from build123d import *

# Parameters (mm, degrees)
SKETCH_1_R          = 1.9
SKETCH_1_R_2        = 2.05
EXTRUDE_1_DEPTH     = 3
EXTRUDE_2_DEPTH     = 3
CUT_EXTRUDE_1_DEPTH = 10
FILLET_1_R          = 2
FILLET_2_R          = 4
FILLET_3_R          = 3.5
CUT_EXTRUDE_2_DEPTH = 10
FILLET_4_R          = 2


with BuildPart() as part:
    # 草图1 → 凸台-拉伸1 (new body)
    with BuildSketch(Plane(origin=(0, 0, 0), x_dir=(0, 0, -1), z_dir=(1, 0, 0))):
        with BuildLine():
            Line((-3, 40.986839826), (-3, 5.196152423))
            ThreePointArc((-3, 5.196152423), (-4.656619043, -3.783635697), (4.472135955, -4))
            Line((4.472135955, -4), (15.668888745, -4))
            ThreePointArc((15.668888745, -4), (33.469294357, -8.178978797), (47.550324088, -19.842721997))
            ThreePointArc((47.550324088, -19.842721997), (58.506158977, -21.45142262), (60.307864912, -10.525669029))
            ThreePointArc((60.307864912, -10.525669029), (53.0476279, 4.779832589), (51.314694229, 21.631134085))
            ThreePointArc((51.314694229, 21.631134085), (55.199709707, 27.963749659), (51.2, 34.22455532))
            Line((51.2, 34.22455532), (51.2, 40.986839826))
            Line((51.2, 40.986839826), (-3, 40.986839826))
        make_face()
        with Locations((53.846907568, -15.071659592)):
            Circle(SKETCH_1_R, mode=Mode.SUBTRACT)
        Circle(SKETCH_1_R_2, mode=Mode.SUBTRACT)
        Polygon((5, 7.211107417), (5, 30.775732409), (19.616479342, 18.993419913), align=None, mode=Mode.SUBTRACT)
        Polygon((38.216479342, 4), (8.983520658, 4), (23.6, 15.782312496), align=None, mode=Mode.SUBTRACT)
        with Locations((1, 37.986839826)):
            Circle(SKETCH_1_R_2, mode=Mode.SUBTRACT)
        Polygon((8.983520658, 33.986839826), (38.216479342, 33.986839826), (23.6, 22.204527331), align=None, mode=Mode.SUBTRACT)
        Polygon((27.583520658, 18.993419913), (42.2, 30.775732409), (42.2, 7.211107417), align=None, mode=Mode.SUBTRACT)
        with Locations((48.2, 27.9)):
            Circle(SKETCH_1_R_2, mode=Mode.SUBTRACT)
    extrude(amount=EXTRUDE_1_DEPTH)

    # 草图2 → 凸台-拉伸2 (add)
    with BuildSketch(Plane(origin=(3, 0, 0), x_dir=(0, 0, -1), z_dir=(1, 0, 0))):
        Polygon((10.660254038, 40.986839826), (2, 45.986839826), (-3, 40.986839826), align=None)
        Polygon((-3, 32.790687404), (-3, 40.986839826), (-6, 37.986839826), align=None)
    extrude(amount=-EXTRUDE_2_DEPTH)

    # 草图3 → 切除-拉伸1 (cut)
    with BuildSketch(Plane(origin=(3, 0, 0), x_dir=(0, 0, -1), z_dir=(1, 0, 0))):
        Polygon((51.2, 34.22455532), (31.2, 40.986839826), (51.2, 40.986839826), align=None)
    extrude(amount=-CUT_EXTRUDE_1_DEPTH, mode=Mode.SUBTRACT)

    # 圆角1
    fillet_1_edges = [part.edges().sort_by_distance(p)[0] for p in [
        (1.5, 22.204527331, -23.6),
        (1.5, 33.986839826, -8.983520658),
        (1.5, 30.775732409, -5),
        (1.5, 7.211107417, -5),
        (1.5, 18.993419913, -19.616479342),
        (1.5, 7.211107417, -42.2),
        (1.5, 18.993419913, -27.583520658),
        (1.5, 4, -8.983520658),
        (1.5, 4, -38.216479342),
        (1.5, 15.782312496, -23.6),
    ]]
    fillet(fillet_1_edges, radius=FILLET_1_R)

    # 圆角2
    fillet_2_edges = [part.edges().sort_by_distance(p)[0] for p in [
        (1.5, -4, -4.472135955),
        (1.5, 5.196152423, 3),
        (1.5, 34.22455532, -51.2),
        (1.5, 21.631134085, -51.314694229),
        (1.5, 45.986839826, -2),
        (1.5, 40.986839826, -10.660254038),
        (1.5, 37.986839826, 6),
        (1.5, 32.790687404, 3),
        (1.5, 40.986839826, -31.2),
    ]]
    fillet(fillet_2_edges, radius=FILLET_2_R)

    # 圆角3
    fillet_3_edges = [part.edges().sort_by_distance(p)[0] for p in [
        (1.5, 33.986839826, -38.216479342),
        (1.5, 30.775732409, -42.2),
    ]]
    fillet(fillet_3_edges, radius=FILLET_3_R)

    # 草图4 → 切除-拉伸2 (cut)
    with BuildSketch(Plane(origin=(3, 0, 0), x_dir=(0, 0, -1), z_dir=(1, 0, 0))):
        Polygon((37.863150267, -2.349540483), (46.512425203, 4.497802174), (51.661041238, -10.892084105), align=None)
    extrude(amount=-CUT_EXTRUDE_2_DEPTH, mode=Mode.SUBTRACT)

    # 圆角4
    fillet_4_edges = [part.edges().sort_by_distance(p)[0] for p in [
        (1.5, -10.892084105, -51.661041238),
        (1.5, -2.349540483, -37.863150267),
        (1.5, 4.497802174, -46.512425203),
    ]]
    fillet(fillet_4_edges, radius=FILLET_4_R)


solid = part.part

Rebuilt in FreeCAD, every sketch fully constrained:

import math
import FreeCAD as App
import Part
import Sketcher
from FreeCAD import Vector
Q = App.Units.Quantity


def edges_at(feature, points):
    """Names of the edges that pass closest to the given points."""
    edges = feature.Shape.Edges
    near = lambda p: min(range(len(edges)), key=lambda i: edges[i].distToShape(Part.Vertex(*p))[0])
    return sorted({f"Edge{near(p) + 1}" for p in points})


def add_polygon(sketch, points):
    """Adds a closed chain of lines whose ends are joined by coincident constraints."""
    first, n = sketch.GeometryCount, len(points)
    for a, b in zip(points, points[1:] + points[:1]):
        sketch.addGeometry(Part.LineSegment(App.Vector(*a, 0), App.Vector(*b, 0)), False)
    for i in range(n):
        sketch.addConstraint(Sketcher.Constraint("Coincident", first + i, 2, first + (i + 1) % n, 1))

doc = App.newDocument("Part")
body = doc.addObject("PartDesign::Body", "Body")

sketch1 = doc.addObject("Sketcher::SketchObject", "Sketch")
body.addObject(sketch1)
sketch1.AttachmentSupport = (doc.YZ_Plane, [""])
sketch1.MapMode = "FlatFace"
sketch1.addGeometry(Part.LineSegment(Vector(40.98684, 3, 0), Vector(5.196152, 3, 0)), False)
sketch1.addGeometry(Part.ArcOfCircle(Part.Circle(Vector(0, 0, 0), Vector(0, 0, 1), 6), math.radians(30), math.radians(228.189685)), False)
sketch1.addGeometry(Part.LineSegment(Vector(-4, -4.472136, 0), Vector(-4, -15.668889, 0)), False)
sketch1.addGeometry(Part.ArcOfCircle(Part.Circle(Vector(-44, -15.668889, 0), Vector(0, 0, 1), 40), math.radians(-52.847975), math.radians(0)), False)
sketch1.addGeometry(Part.ArcOfCircle(Part.Circle(Vector(-15.07166, -53.846908, 0), Vector(0, 0, 1), 7.9), math.radians(127.152025), math.radians(305.130581)), False)
sketch1.addGeometry(Part.ArcOfCircle(Part.Circle(Vector(18.246423, -101.2, 0), Vector(0, 0, 1), 50), math.radians(86.118439), math.radians(125.130581)), False)
sketch1.addGeometry(Part.ArcOfCircle(Part.Circle(Vector(27.9, -48.2, 0), Vector(0, 0, 1), 7), math.radians(-153.579456), math.radians(-25.376934)), False)
sketch1.addGeometry(Part.LineSegment(Vector(34.224555, -51.2, 0), Vector(40.98684, -51.2, 0)), False)
sketch1.addGeometry(Part.LineSegment(Vector(40.98684, -51.2, 0), Vector(40.98684, 3, 0)), False)
sketch1.addGeometry(Part.Circle(Vector(0, 0, 0), Vector(0, 0, 1), 2.05), False)
add_polygon(sketch1, [(15.782312, -23.6), (4, -38.216479), (4, -8.983521)])
sketch1.addGeometry(Part.Circle(Vector(-15.07166, -53.846908, 0), Vector(0, 0, 1), 1.9), False)
add_polygon(sketch1, [(18.99342, -19.616479), (7.211107, -5), (30.775732, -5)])
sketch1.addGeometry(Part.Circle(Vector(37.98684, -1, 0), Vector(0, 0, 1), 2.05), False)
add_polygon(sketch1, [(22.204527, -23.6), (33.98684, -8.983521), (33.98684, -38.216479)])
add_polygon(sketch1, [(7.211107, -42.2), (18.99342, -27.583521), (30.775732, -42.2)])
sketch1.addGeometry(Part.Circle(Vector(27.9, -48.2, 0), Vector(0, 0, 1), 2.05), False)
sketch1.addConstraint([
    Sketcher.Constraint("Coincident", 0, 2, 1, 1),
    Sketcher.Constraint("Coincident", 1, 2, 2, 1),
    Sketcher.Constraint("Tangent", 2, 2, 3, 2),
    Sketcher.Constraint("Tangent", 3, 1, 4, 1),
    Sketcher.Constraint("Tangent", 4, 2, 5, 2),
    Sketcher.Constraint("Coincident", 5, 1, 6, 1),
    Sketcher.Constraint("Coincident", 6, 2, 7, 1),
    Sketcher.Constraint("Coincident", 7, 2, 8, 1),
    Sketcher.Constraint("Coincident", 8, 2, 0, 1),
    Sketcher.Constraint("Horizontal", 0),
    Sketcher.Constraint("Vertical", 2),
    Sketcher.Constraint("Horizontal", 7),
    Sketcher.Constraint("Vertical", 8),
    Sketcher.Constraint("Vertical", 11),
    Sketcher.Constraint("Horizontal", 15),
    Sketcher.Constraint("Vertical", 19),
    Sketcher.Constraint("Horizontal", 23),
    Sketcher.Constraint("Coincident", 1, 3, -1, 1),
    Sketcher.Constraint("Coincident", 9, 3, -1, 1),
    Sketcher.Constraint("Coincident", 13, 3, 4, 3),
    Sketcher.Constraint("Coincident", 24, 3, 6, 3),
    Sketcher.Constraint("Equal", 9, 17),
    Sketcher.Constraint("Equal", 17, 24),
    Sketcher.Constraint("Parallel", 12, 14),
    Sketcher.Constraint("Parallel", 10, 16),
    Sketcher.Constraint("Parallel", 16, 18),
    Sketcher.Constraint("Parallel", 14, 20),
    Sketcher.Constraint("Parallel", 18, 21),
    Sketcher.Constraint("Parallel", 20, 22),
    Sketcher.Constraint("Horizontal", 11, 2, 18, 2),
    Sketcher.Constraint("Horizontal", 10, 2, 19, 2),
    Sketcher.Constraint("Horizontal", 12, 2, 20, 2),
    Sketcher.Constraint("Vertical", 16, 2, 21, 2),
    Sketcher.Constraint("Vertical", 15, 2, 22, 2),
    Sketcher.Constraint("Equal", 12, 14),
    Sketcher.Constraint("Radius", 1, 6.0),
    Sketcher.Constraint("Radius", 3, 40.0),
    Sketcher.Constraint("Radius", 5, 50.0),
    Sketcher.Constraint("Radius", 6, 7.0),
    Sketcher.Constraint("Diameter", 9, 4.1),
    Sketcher.Constraint("Diameter", 13, 3.8),
    Sketcher.Constraint("Radius", 4, 7.9),
    Sketcher.Constraint("DistanceY", 8, 1, 8, 2, 54.2),
    Sketcher.Constraint("DistanceX", 3, 3, -1, 1, 44.0),
    Sketcher.Constraint("DistanceY", 17, 3, -1, 1, 1.0),
    Sketcher.Constraint("DistanceY", -1, 1, 0, 2, 3.0),
    Sketcher.Constraint("DistanceX", -1, 1, 10, 2, 4.0),
    Sketcher.Constraint("DistanceY", 14, 2, -1, 1, 5.0),
    Sketcher.Constraint("DistanceY", 5, 3, 6, 3, 53.0),
    Sketcher.Constraint("DistanceY", 6, 2, 6, 3, 3.0),
    Sketcher.Constraint("DistanceX", 17, 3, 7, 2, 3.0),
    Sketcher.Constraint("DistanceX", 18, 2, 17, 3, 4.0),
    Sketcher.Constraint("DistanceY", 6, 3, 22, 2, 6.0),
    Sketcher.Constraint("DistanceX", -1, 1, 6, 3, 27.9),
    Sketcher.Constraint("DistanceY", 12, 2, -1, 1, 23.6),
    Sketcher.Constraint("DistanceY", 11, 1, 11, 2, 29.232959),
    Sketcher.Constraint("DistanceX", 4, 3, 17, 3, 53.058499),
    Sketcher.Constraint("DistanceX", 5, 1, 22, 2, 9.144598),
    Sketcher.Constraint("DistanceX", 0, 2, 0, 1, 35.790687),
    Sketcher.Constraint("DistanceX", 15, 1, 15, 2, 23.564625),
    Sketcher.Constraint("DistanceY", 2, 2, 2, 1, 11.196753),
])
pad1 = doc.addObject("PartDesign::Pad", "Pad")
body.addObject(pad1)
pad1.Profile = sketch1
pad1.Length = 3

sketch2 = doc.addObject("Sketcher::SketchObject", "Sketch001")
body.addObject(sketch2)
sketch2.AttachmentSupport = (doc.YZ_Plane, [""])
sketch2.MapMode = "FlatFace"
sketch2.AttachmentOffset = App.Placement(Vector(0, 0, 3), App.Rotation())
add_polygon(sketch2, [(40.98684, -10.660254), (45.98684, -2), (40.98684, 3)])
add_polygon(sketch2, [(32.790687, 3), (40.98684, 3), (37.98684, 6)])
sketch2.addConstraint([
    Sketcher.Constraint("Vertical", 2),
    Sketcher.Constraint("Horizontal", 3),
    Sketcher.Constraint("Coincident", 3, 2, 1, 2),
    Sketcher.Constraint("Parallel", 1, 4),
    Sketcher.Constraint("Angle", 0, Q("60 deg")),
    Sketcher.Constraint("Angle", 1, Q("135 deg")),
    Sketcher.Constraint("Angle", 5, Q("-150 deg")),
    Sketcher.Constraint("Distance", 0, 10.0),
    Sketcher.Constraint("Distance", 5, 6.0),
    Sketcher.Constraint("DistanceY", 0, 2, -1, 1, 2.0),
    Sketcher.Constraint("DistanceX", -1, 1, 0, 2, 45.98684),
])
pad2 = doc.addObject("PartDesign::Pad", "Pad001")
body.addObject(pad2)
pad2.Profile = sketch2
pad2.Length = 3
pad2.Reversed = True

sketch3 = doc.addObject("Sketcher::SketchObject", "Sketch002")
body.addObject(sketch3)
sketch3.AttachmentSupport = (doc.YZ_Plane, [""])
sketch3.MapMode = "FlatFace"
sketch3.AttachmentOffset = App.Placement(Vector(0, 0, 3), App.Rotation())
add_polygon(sketch3, [(40.98684, -31.2), (34.224555, -51.2), (40.98684, -51.2)])
sketch3.addConstraint([
    Sketcher.Constraint("Horizontal", 1),
    Sketcher.Constraint("Vertical", 2),
    Sketcher.Constraint("DistanceY", 2, 1, 2, 2, 20.0),
    Sketcher.Constraint("DistanceY", 0, 2, -1, 1, 51.2),
    Sketcher.Constraint("DistanceX", 1, 1, 1, 2, 6.762285),
    Sketcher.Constraint("DistanceX", -1, 1, 1, 2, 40.98684),
])
pocket1 = doc.addObject("PartDesign::Pocket", "Pocket")
body.addObject(pocket1)
pocket1.Profile = sketch3
pocket1.Length = 10
doc.recompute()

fillet = doc.addObject("PartDesign::Fillet", "Fillet")
body.addObject(fillet)
fillet.Base = (pocket1, edges_at(pocket1, [
    (1.5, 22.205, -23.6),
    (1.5, 33.987, -8.984),
    (1.5, 30.776, -5),
    (1.5, 7.211, -5),
    (1.5, 18.993, -19.616),
    (1.5, 7.211, -42.2),
    (1.5, 18.993, -27.584),
    (1.5, 4, -8.984),
    (1.5, 4, -38.216),
    (1.5, 15.782, -23.6),
]))
fillet.Radius = 2
doc.recompute()

fillet2 = doc.addObject("PartDesign::Fillet", "Fillet001")
body.addObject(fillet2)
fillet2.Base = (fillet, edges_at(fillet, [
    (1.5, -4, -4.472),
    (1.5, 5.196, 3),
    (1.5, 34.225, -51.2),
    (1.5, 21.631, -51.315),
    (1.5, 45.987, -2),
    (1.5, 40.987, -10.66),
    (1.5, 37.987, 6),
    (1.5, 32.791, 3),
    (1.5, 40.987, -31.2),
]))
fillet2.Radius = 4
doc.recompute()

fillet3 = doc.addObject("PartDesign::Fillet", "Fillet002")
body.addObject(fillet3)
fillet3.Base = (fillet2, edges_at(fillet2, [(1.5, 33.987, -38.216), (1.5, 30.776, -42.2)]))
fillet3.Radius = 3.5

sketch4 = doc.addObject("Sketcher::SketchObject", "Sketch003")
body.addObject(sketch4)
sketch4.AttachmentSupport = (doc.YZ_Plane, [""])
sketch4.MapMode = "FlatFace"
sketch4.AttachmentOffset = App.Placement(Vector(0, 0, 3), App.Rotation())
add_polygon(sketch4, [(4.497802, -46.512425), (-2.34954, -37.86315), (-10.892084, -51.661041)])
sketch4.addConstraint([
    Sketcher.Constraint("Equal", 1, 2),
    Sketcher.Constraint("DistanceX", 0, 2, -1, 1, 2.34954),
    Sketcher.Constraint("DistanceY", 0, 2, -1, 1, 37.86315),
    Sketcher.Constraint("DistanceY", 1, 2, -1, 1, 51.661041),
    Sketcher.Constraint("Distance", 0, 11.031594),
    Sketcher.Constraint("Distance", 1, 16.228273),
])
pocket2 = doc.addObject("PartDesign::Pocket", "Pocket001")
body.addObject(pocket2)
pocket2.Profile = sketch4
pocket2.Length = 10
doc.recompute()

fillet4 = doc.addObject("PartDesign::Fillet", "Fillet003")
body.addObject(fillet4)
fillet4.Base = (pocket2, edges_at(pocket2, [(1.5, -10.892, -51.661), (1.5, -2.35, -37.863), (1.5, 4.498, -46.512)]))
fillet4.Radius = 2

doc.recompute()
